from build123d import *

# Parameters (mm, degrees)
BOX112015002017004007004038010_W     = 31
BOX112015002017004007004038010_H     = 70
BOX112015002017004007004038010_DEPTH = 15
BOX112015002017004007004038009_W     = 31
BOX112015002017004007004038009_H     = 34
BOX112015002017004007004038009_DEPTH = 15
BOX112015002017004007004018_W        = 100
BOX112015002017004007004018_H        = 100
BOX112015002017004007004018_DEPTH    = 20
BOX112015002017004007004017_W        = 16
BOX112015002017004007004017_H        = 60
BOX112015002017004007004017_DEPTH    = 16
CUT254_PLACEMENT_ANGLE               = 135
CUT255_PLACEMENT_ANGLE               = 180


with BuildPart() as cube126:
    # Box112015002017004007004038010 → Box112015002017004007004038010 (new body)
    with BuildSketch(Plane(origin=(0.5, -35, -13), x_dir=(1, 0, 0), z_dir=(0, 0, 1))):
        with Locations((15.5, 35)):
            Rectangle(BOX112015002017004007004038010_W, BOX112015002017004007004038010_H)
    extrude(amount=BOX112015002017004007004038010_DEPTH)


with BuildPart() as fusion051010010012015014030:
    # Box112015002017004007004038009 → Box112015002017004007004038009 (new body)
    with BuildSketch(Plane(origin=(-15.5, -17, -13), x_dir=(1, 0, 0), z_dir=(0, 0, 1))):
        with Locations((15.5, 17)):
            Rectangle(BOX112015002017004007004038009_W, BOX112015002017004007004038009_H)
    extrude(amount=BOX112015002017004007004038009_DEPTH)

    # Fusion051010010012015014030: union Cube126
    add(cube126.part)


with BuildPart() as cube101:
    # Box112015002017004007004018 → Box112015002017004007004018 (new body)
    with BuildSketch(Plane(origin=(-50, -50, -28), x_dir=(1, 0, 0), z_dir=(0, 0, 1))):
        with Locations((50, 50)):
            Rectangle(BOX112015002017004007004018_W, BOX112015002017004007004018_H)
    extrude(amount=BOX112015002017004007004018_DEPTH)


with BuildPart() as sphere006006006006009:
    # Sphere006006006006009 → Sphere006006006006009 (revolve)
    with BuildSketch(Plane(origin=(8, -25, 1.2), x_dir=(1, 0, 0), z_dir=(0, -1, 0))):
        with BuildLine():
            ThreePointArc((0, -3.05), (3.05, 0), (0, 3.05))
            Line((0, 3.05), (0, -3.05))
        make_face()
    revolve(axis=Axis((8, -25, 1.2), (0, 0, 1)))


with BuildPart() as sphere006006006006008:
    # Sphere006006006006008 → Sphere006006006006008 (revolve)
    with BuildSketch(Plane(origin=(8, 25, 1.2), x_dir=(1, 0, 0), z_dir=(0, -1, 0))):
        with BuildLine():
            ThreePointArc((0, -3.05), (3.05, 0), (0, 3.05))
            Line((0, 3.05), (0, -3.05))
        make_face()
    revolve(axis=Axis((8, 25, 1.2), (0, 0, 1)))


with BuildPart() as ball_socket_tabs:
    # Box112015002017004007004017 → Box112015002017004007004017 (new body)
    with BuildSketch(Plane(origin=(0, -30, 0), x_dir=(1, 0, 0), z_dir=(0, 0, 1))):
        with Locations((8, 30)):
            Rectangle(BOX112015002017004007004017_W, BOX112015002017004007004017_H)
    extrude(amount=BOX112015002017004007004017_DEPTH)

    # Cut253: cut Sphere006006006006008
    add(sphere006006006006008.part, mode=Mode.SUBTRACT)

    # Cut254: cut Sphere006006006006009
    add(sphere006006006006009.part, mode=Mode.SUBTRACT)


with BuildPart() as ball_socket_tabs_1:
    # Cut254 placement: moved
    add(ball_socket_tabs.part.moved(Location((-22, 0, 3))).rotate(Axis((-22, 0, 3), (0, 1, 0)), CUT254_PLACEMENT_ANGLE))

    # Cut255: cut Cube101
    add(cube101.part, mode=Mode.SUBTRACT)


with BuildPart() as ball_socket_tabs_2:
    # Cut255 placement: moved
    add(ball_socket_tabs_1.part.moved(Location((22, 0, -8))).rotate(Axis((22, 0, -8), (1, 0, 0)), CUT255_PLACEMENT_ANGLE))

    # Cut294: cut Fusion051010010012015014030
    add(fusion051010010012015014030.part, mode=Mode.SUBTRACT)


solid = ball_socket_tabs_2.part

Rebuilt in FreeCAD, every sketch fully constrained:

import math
import FreeCAD as App
import Part
import Sketcher
from FreeCAD import Vector


def add_polygon(sketch, points):
    """Adds a closed chain of lines whose ends are joined by coincident constraints."""
    first, n = sketch.GeometryCount, len(points)
    for a, b in zip(points, points[1:] + points[:1]):
        sketch.addGeometry(Part.LineSegment(App.Vector(*a, 0), App.Vector(*b, 0)), False)
    for i in range(n):
        sketch.addConstraint(Sketcher.Constraint("Coincident", first + i, 2, first + (i + 1) % n, 1))

doc = App.newDocument("Part")
body = doc.addObject("PartDesign::Body", "Body")

# Sketch on XY plane
sketch1 = body.newObject("Sketcher::SketchObject", "Sketch")
sketch1.AttachmentSupport = (doc.getObject("XY_Plane"), [""])
sketch1.MapMode = "FlatFace"
sketch1.AttachmentOffset = App.Placement(Vector(0, 0, -13), App.Rotation())
add_polygon(sketch1, [(0.5, 35), (0.5, -35), (31.5, -35), (31.5, 35)])  # lines 0-3
sketch1.addConstraint(Sketcher.Constraint("Vertical", 0))
sketch1.addConstraint(Sketcher.Constraint("Horizontal", 1))
sketch1.addConstraint(Sketcher.Constraint("Vertical", 2))
sketch1.addConstraint(Sketcher.Constraint("Horizontal", 3))
sketch1.addConstraint(Sketcher.Constraint("DistanceX", 1, 1, 1, 2, 31.0))
sketch1.addConstraint(Sketcher.Constraint("DistanceY", 0, 2, 0, 1, 70.0))
sketch1.addConstraint(Sketcher.Constraint("DistanceY", 0, 2, -1, 1, 35.0))
sketch1.addConstraint(Sketcher.Constraint("DistanceX", -1, 1, 0, 2, 0.5))
pad1 = body.newObject("PartDesign::Pad", "Pad")
pad1.Profile = sketch1
pad1.Length = 15
body2 = doc.addObject("PartDesign::Body", "Body001")

# Sketch on XY plane
sketch2 = body2.newObject("Sketcher::SketchObject", "Sketch001")
sketch2.AttachmentSupport = (doc.getObject("XY_Plane001"), [""])
sketch2.MapMode = "FlatFace"
sketch2.AttachmentOffset = App.Placement(Vector(0, 0, -13), App.Rotation())
add_polygon(sketch2, [(-15.5, 17), (-15.5, -17), (15.5, -17), (15.5, 17)])  # lines 0-3
sketch2.addConstraint(Sketcher.Constraint("Vertical", 0))
sketch2.addConstraint(Sketcher.Constraint("Horizontal", 1))
sketch2.addConstraint(Sketcher.Constraint("Vertical", 2))
sketch2.addConstraint(Sketcher.Constraint("Horizontal", 3))
sketch2.addConstraint(Sketcher.Constraint("Symmetric", 0, 2, 2, 2, -1, 1))
sketch2.addConstraint(Sketcher.Constraint("DistanceX", 1, 1, 1, 2, 31.0))
sketch2.addConstraint(Sketcher.Constraint("DistanceY", 0, 2, 0, 1, 34.0))
pad2 = body2.newObject("PartDesign::Pad", "Pad001")
pad2.Profile = sketch2
pad2.Length = 15
doc.recompute()

boolean = body2.newObject("PartDesign::Boolean", "Boolean")
boolean.Type = "Fuse"
boolean.addObjects([body])
body3 = doc.addObject("PartDesign::Body", "Body002")

# Sketch on XY plane
sketch3 = body3.newObject("Sketcher::SketchObject", "Sketch002")
sketch3.AttachmentSupport = (doc.getObject("XY_Plane002"), [""])
sketch3.MapMode = "FlatFace"
sketch3.AttachmentOffset = App.Placement(Vector(0, 0, -28), App.Rotation())
add_polygon(sketch3, [(-50, 50), (-50, -50), (50, -50), (50, 50)])  # lines 0-3
sketch3.addConstraint(Sketcher.Constraint("Vertical", 0))
sketch3.addConstraint(Sketcher.Constraint("Horizontal", 1))
sketch3.addConstraint(Sketcher.Constraint("Vertical", 2))
sketch3.addConstraint(Sketcher.Constraint("Horizontal", 3))
sketch3.addConstraint(Sketcher.Constraint("Symmetric", 0, 2, 2, 2, -1, 1))
sketch3.addConstraint(Sketcher.Constraint("Equal", 3, 0))
sketch3.addConstraint(Sketcher.Constraint("DistanceX", 1, 1, 1, 2, 100.0))
pad3 = body3.newObject("PartDesign::Pad", "Pad002")
pad3.Profile = sketch3
pad3.Length = 20
body4 = doc.addObject("PartDesign::Body", "Body003")

# Sketch on XZ plane
sketch4 = body4.newObject("Sketcher::SketchObject", "Sketch003")
sketch4.AttachmentSupport = (doc.getObject("XZ_Plane003"), [""])
sketch4.MapMode = "FlatFace"
sketch4.AttachmentOffset = App.Placement(Vector(0, 0, 25), App.Rotation())
sketch4.addGeometry(Part.ArcOfCircle(Part.Circle(Vector(8, 1.2, 0), Vector(0, 0, 1), 3.05), math.radians(-90), math.radians(90)), False)
sketch4.addGeometry(Part.LineSegment(Vector(8, 4.25, 0), Vector(8, -1.85, 0)), False)
sketch4.addGeometry(Part.LineSegment(Vector(8, -1.85, 0), Vector(8, 4.25, 0)), True)  # axis
sketch4.addConstraint(Sketcher.Constraint("Coincident", 0, 1, 1, 2))
sketch4.addConstraint(Sketcher.Constraint("Coincident", 1, 1, 0, 2))
sketch4.addConstraint(Sketcher.Constraint("Vertical", 1))
sketch4.addConstraint(Sketcher.Constraint("Vertical", 2))
sketch4.addConstraint(Sketcher.Constraint("Coincident", 2, 1, 0, 1))
sketch4.addConstraint(Sketcher.Constraint("Equal", 1, 2))
sketch4.addConstraint(Sketcher.Constraint("Radius", 0, 3.05))
sketch4.addConstraint(Sketcher.Constraint("DistanceX", -1, 1, 0, 3, 8.0))
sketch4.addConstraint(Sketcher.Constraint("DistanceX", -1, 1, 0, 1, 8.0))
sketch4.addConstraint(Sketcher.Constraint("DistanceY", -1, 1, 0, 3, 1.2))
revolution = body4.newObject("PartDesign::Revolution", "Revolution")
revolution.Profile = sketch4
revolution.ReferenceAxis = (sketch4, ["Axis0"])
revolution.Angle = 360
body5 = doc.addObject("PartDesign::Body", "Body004")

# Sketch on XZ plane
sketch5 = body5.newObject("Sketcher::SketchObject", "Sketch004")
sketch5.AttachmentSupport = (doc.getObject("XZ_Plane004"), [""])
sketch5.MapMode = "FlatFace"
sketch5.AttachmentOffset = App.Placement(Vector(0, 0, -25), App.Rotation())
sketch5.addGeometry(Part.ArcOfCircle(Part.Circle(Vector(8, 1.2, 0), Vector(0, 0, 1), 3.05), math.radians(-90), math.radians(90)), False)
sketch5.addGeometry(Part.LineSegment(Vector(8, 4.25, 0), Vector(8, -1.85, 0)), False)
sketch5.addGeometry(Part.LineSegment(Vector(8, -1.85, 0), Vector(8, 4.25, 0)), True)  # axis
sketch5.addConstraint(Sketcher.Constraint("Coincident", 0, 1, 1, 2))
sketch5.addConstraint(Sketcher.Constraint("Coincident", 1, 1, 0, 2))
sketch5.addConstraint(Sketcher.Constraint("Vertical", 1))
sketch5.addConstraint(Sketcher.Constraint("Vertical", 2))
sketch5.addConstraint(Sketcher.Constraint("Coincident", 2, 1, 0, 1))
sketch5.addConstraint(Sketcher.Constraint("Equal", 1, 2))
sketch5.addConstraint(Sketcher.Constraint("Radius", 0, 3.05))
sketch5.addConstraint(Sketcher.Constraint("DistanceX", -1, 1, 0, 3, 8.0))
sketch5.addConstraint(Sketcher.Constraint("DistanceX", -1, 1, 0, 1, 8.0))
sketch5.addConstraint(Sketcher.Constraint("DistanceY", -1, 1, 0, 3, 1.2))
revolution2 = body5.newObject("PartDesign::Revolution", "Revolution001")
revolution2.Profile = sketch5
revolution2.ReferenceAxis = (sketch5, ["Axis0"])
revolution2.Angle = 360
body6 = doc.addObject("PartDesign::Body", "Body005")

# Sketch on XY plane
sketch6 = body6.newObject("Sketcher::SketchObject", "Sketch005")
sketch6.AttachmentSupport = (doc.getObject("XY_Plane005"), [""])
sketch6.MapMode = "FlatFace"
add_polygon(sketch6, [(0, 30), (0, -30), (16, -30), (16, 30)])  # lines 0-3
sketch6.addConstraint(Sketcher.Constraint("Vertical", 0))
sketch6.addConstraint(Sketcher.Constraint("Horizontal", 1))
sketch6.addConstraint(Sketcher.Constraint("Vertical", 2))
sketch6.addConstraint(Sketcher.Constraint("Horizontal", 3))
sketch6.addConstraint(Sketcher.Constraint("Symmetric", 0, 2, 3, 2, -1, 1))
sketch6.addConstraint(Sketcher.Constraint("DistanceX", 1, 1, 1, 2, 16.0))
sketch6.addConstraint(Sketcher.Constraint("DistanceY", 0, 2, 0, 1, 60.0))
pad4 = body6.newObject("PartDesign::Pad", "Pad003")
pad4.Profile = sketch6
pad4.Length = 16
doc.recompute()

boolean2 = body6.newObject("PartDesign::Boolean", "Boolean001")
boolean2.Type = "Cut"
boolean2.addObjects([body5])
doc.recompute()

boolean3 = body6.newObject("PartDesign::Boolean", "Boolean002")
boolean3.Type = "Cut"
boolean3.addObjects([body4])
body7 = doc.addObject("PartDesign::Body", "Body006")
doc.recompute()

body6.Placement = App.Placement(Vector(-22, 0, 3), App.Rotation(Vector(0, 1, 0), 135))
boolean4 = body7.newObject("PartDesign::Boolean", "Boolean003")
boolean4.Type = "Fuse"
boolean4.addObjects([body6])
doc.recompute()

boolean5 = body7.newObject("PartDesign::Boolean", "Boolean004")
boolean5.Type = "Cut"
boolean5.addObjects([body3])
body8 = doc.addObject("PartDesign::Body", "Body007")
body8.AllowCompound = True
doc.recompute()

body7.Placement = App.Placement(Vector(22, 0, -8), App.Rotation(Vector(1, 0, 0), 180))
boolean6 = body8.newObject("PartDesign::Boolean", "Boolean005")
boolean6.Type = "Fuse"
boolean6.addObjects([body7])
doc.recompute()

boolean7 = body8.newObject("PartDesign::Boolean", "Boolean006")
boolean7.Type = "Cut"
boolean7.addObjects([body2])

doc.recompute()
